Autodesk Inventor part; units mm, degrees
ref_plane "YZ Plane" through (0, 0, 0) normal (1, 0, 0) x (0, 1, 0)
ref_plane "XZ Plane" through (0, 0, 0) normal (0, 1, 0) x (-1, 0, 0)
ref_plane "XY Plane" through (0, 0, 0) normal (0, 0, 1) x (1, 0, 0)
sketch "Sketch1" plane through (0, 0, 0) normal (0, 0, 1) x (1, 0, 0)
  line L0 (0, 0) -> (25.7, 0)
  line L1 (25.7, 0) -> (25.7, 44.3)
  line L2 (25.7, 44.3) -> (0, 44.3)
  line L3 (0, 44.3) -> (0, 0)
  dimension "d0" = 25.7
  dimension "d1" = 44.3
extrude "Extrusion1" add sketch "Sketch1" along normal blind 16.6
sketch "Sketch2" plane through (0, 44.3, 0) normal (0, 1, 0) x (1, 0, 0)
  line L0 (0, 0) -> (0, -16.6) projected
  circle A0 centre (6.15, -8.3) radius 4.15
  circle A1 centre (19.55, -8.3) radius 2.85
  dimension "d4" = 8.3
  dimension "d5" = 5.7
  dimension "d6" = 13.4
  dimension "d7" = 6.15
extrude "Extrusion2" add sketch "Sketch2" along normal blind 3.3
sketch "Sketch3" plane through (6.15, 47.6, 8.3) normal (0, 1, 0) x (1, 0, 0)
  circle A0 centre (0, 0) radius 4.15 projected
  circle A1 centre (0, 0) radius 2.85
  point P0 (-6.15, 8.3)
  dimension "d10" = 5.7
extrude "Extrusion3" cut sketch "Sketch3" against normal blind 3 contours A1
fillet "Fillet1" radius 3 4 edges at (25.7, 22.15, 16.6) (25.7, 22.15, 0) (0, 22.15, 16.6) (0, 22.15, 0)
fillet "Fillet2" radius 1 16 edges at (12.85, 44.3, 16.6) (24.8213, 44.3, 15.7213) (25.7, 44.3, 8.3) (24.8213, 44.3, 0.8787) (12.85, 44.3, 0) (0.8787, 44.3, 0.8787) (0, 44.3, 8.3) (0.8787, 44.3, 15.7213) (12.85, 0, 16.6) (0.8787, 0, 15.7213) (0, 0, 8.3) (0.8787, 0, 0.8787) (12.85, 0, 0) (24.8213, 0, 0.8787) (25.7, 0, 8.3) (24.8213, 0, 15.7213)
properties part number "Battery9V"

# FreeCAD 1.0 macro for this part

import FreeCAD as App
import Part
import Sketcher
Q = App.Units.Quantity


def edges_at(feature, points):
    """Names of the edges that pass closest to the given points."""
    edges = feature.Shape.Edges
    near = lambda p: min(range(len(edges)), key=lambda i: edges[i].distToShape(Part.Vertex(*p))[0])
    return sorted({f"Edge{near(p) + 1}" for p in points})

doc = App.newDocument("Part")
params = doc.addObject("Spreadsheet::Sheet", "Params")
for row, (alias, value) in enumerate([
    ("sketch1_width", "25.7 mm"),
    ("sketch1_height", "44.3 mm"),
    ("pad1_length", "16.6 mm"),
    ("sketch2_diameter", "8.3 mm"),
    ("sketch2_diameter2", "5.7 mm"),
    ("pad2_length", "3.3 mm"),
    ("sketch3_diameter", "5.7 mm"),
    ("pocket1_length", "3 mm"),
    ("fillet_radius", "3 mm"),
    ("fillet2_radius", "1 mm"),
], start=1):
    params.set(f"A{row}", alias)
    params.set(f"B{row}", "=" + value)
    params.setAlias(f"B{row}", alias)

body = doc.addObject("PartDesign::Body", "Body")

# Sketch on XY plane
sketch1 = doc.addObject("Sketcher::SketchObject", "Sketch")
body.addObject(sketch1)
sketch1.AttachmentSupport = (doc.XY_Plane, [""])
sketch1.MapMode = "FlatFace"
sketch1.addGeometry(Part.LineSegment(App.Vector(0, 44, 0), App.Vector(0, 0, 0)), False)
sketch1.addGeometry(Part.LineSegment(App.Vector(0, 0, 0), App.Vector(26, 0, 0)), False)
sketch1.addGeometry(Part.LineSegment(App.Vector(26, 0, 0), App.Vector(26, 44, 0)), False)
sketch1.addGeometry(Part.LineSegment(App.Vector(26, 44, 0), App.Vector(0, 44, 0)), False)
sketch1.addConstraint(Sketcher.Constraint("Coincident", 0, 2, 1, 1))
sketch1.addConstraint(Sketcher.Constraint("Coincident", 1, 2, 2, 1))
sketch1.addConstraint(Sketcher.Constraint("Coincident", 2, 2, 3, 1))
sketch1.addConstraint(Sketcher.Constraint("Coincident", 3, 2, 0, 1))
sketch1.addConstraint(Sketcher.Constraint("Vertical", 0))
sketch1.addConstraint(Sketcher.Constraint("Horizontal", 1))
sketch1.addConstraint(Sketcher.Constraint("Vertical", 2))
sketch1.addConstraint(Sketcher.Constraint("Horizontal", 3))
sketch1.addConstraint(Sketcher.Constraint("Coincident", 0, 2, -1, 1))
sketch1.addConstraint(Sketcher.Constraint("DistanceX", 1, 1, 1, 2, Q("25.7 mm")))
sketch1.addConstraint(Sketcher.Constraint("DistanceY", 0, 2, 0, 1, Q("44.3 mm")))
sketch1.setExpression("Constraints[9]", "Params.sketch1_width")
sketch1.setExpression("Constraints[10]", "Params.sketch1_height")
pad1 = doc.addObject("PartDesign::Pad", "Pad")
body.addObject(pad1)
pad1.Profile = sketch1
pad1.setExpression("Length", "Params.pad1_length")

# Sketch on XZ plane
sketch2 = doc.addObject("Sketcher::SketchObject", "Sketch001")
body.addObject(sketch2)
sketch2.AttachmentSupport = (doc.XZ_Plane, [""])
sketch2.MapMode = "FlatFace"
sketch2.AttachmentOffset = App.Placement(App.Vector(0, 0, -44.3), App.Rotation())
sketch2.addGeometry(Part.Circle(App.Vector(6.2, 8.3, 0), App.Vector(0, 0, 1), 4.2), False)
sketch2.addGeometry(Part.Circle(App.Vector(19.6, 8.3, 0), App.Vector(0, 0, 1), 2.9), False)
sketch2.addConstraint(Sketcher.Constraint("Horizontal", 0, 3, 1, 3))
sketch2.addConstraint(Sketcher.Constraint("Diameter", 0, Q("8.3 mm")))
sketch2.addConstraint(Sketcher.Constraint("Diameter", 1, Q("5.7 mm")))
sketch2.addConstraint(Sketcher.Constraint("DistanceY", -1, 1, 0, 3, Q("8.3 mm")))
sketch2.addConstraint(Sketcher.Constraint("DistanceX", 0, 3, 1, 3, Q("13.4 mm")))
sketch2.addConstraint(Sketcher.Constraint("DistanceX", -1, 1, 0, 3, Q("6.15 mm")))
sketch2.setExpression("Constraints[1]", "Params.sketch2_diameter")
sketch2.setExpression("Constraints[2]", "Params.sketch2_diameter2")
pad2 = doc.addObject("PartDesign::Pad", "Pad001")
body.addObject(pad2)
pad2.Profile = sketch2
pad2.setExpression("Length", "Params.pad2_length")
pad2.Reversed = True

# Sketch on XZ plane
sketch3 = doc.addObject("Sketcher::SketchObject", "Sketch002")
body.addObject(sketch3)
sketch3.AttachmentSupport = (doc.XZ_Plane, [""])
sketch3.MapMode = "FlatFace"
sketch3.AttachmentOffset = App.Placement(App.Vector(0, 0, -47.6), App.Rotation())
sketch3.addGeometry(Part.Circle(App.Vector(6.2, 8.3, 0), App.Vector(0, 0, 1), 2.9), False)
sketch3.addConstraint(Sketcher.Constraint("Diameter", 0, Q("5.7 mm")))
sketch3.addConstraint(Sketcher.Constraint("DistanceY", -1, 1, 0, 3, Q("8.3 mm")))
sketch3.addConstraint(Sketcher.Constraint("DistanceX", -1, 1, 0, 3, Q("6.15 mm")))
sketch3.setExpression("Constraints[0]", "Params.sketch3_diameter")
pocket1 = doc.addObject("PartDesign::Pocket", "Pocket")
body.addObject(pocket1)
pocket1.Profile = sketch3
pocket1.setExpression("Length", "Params.pocket1_length")
pocket1.Reversed = True
doc.recompute()

fillet = doc.addObject("PartDesign::Fillet", "Fillet")
body.addObject(fillet)
fillet.Base = (pocket1, edges_at(pocket1, [
    (25.7, 22.15, 16.6),
    (25.7, 22.15, 0),
    (0, 22.15, 16.6),
    (0, 22.15, 0),
]))
fillet.setExpression("Radius", "Params.fillet_radius")
doc.recompute()

fillet2 = doc.addObject("PartDesign::Fillet", "Fillet001")
body.addObject(fillet2)
fillet2.Base = (fillet, edges_at(fillet, [
    (12.85, 44.3, 16.6),
    (24.821, 44.3, 15.721),
    (25.7, 44.3, 8.3),
    (24.821, 44.3, 0.879),
    (12.85, 44.3, 0),
    (0.879, 44.3, 0.879),
    (0, 44.3, 8.3),
    (0.879, 44.3, 15.721),
    (12.85, 0, 16.6),
    (0.879, 0, 15.721),
    (0, 0, 8.3),
    (0.879, 0, 0.879),
    (12.85, 0, 0),
    (24.821, 0, 0.879),
    (25.7, 0, 8.3),
    (24.821, 0, 15.721),
]))
fillet2.setExpression("Radius", "Params.fillet2_radius")

doc.recompute()
